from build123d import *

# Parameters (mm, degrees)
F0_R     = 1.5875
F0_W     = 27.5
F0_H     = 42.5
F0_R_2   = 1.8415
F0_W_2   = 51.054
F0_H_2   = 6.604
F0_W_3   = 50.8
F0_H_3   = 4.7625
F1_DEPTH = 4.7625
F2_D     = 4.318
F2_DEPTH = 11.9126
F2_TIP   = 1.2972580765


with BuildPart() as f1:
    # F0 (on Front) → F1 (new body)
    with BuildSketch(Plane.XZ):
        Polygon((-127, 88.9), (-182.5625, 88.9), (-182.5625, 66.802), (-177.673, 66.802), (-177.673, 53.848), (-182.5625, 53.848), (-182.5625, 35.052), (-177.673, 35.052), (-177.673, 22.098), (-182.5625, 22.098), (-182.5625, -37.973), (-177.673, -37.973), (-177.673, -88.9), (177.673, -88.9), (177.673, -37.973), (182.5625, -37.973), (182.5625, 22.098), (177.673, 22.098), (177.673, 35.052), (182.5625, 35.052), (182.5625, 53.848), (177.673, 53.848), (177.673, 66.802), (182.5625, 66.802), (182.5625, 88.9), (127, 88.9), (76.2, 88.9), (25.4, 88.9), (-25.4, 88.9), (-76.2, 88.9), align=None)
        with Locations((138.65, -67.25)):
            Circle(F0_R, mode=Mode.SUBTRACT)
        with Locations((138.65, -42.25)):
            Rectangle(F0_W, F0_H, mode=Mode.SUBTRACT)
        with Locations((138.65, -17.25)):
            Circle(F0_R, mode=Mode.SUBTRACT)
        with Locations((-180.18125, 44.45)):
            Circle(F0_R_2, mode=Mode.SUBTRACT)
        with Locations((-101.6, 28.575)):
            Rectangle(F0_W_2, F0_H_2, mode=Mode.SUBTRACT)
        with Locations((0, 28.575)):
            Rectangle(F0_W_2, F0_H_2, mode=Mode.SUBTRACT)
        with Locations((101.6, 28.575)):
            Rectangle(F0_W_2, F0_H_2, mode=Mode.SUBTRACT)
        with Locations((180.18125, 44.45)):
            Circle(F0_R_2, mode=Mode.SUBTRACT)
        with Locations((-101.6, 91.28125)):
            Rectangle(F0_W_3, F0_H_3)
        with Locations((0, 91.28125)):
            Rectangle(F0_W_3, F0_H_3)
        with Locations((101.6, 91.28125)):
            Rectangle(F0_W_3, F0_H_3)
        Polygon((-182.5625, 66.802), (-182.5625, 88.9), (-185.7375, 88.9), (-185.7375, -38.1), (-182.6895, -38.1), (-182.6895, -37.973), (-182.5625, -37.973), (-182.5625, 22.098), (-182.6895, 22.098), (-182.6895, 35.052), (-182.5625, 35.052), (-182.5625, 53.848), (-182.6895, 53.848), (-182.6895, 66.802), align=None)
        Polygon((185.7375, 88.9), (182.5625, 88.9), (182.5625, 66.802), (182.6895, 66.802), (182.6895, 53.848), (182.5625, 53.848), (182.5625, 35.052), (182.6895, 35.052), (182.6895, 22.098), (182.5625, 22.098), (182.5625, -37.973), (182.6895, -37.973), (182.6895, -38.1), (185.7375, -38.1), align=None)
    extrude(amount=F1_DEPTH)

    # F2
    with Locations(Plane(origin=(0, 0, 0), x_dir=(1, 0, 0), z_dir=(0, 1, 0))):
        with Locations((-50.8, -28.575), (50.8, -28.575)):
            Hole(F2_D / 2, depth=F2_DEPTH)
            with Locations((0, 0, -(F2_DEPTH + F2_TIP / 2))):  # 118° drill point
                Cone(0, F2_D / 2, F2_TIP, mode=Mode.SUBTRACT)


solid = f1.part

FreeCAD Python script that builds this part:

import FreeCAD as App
import Part
import Sketcher
Q = App.Units.Quantity


def add_polygon(sketch, points):
    """Adds a closed chain of lines whose ends are joined by coincident constraints."""
    first, n = sketch.GeometryCount, len(points)
    for a, b in zip(points, points[1:] + points[:1]):
        sketch.addGeometry(Part.LineSegment(App.Vector(*a, 0), App.Vector(*b, 0)), False)
    for i in range(n):
        sketch.addConstraint(Sketcher.Constraint("Coincident", first + i, 2, first + (i + 1) % n, 1))

doc = App.newDocument("Part")
body = doc.addObject("PartDesign::Body", "Body")

# Sketch on XZ plane
sketch1 = body.newObject("Sketcher::SketchObject", "Sketch")
sketch1.AttachmentSupport = (doc.getObject("XZ_Plane"), [""])
sketch1.MapMode = "FlatFace"
add_polygon(sketch1, [(-177.67, -37.97), (-177.67, -88.9), (177.67, -88.9), (177.67, -37.97), (182.69, -37.97), (182.69, -38.1), (185.74, -38.1), (185.74, 88.9), (127, 88.9), (127, 93.66), (76.2, 93.66), (76.2, 88.9), (25.4, 88.9), (25.4, 93.66), (-25.4, 93.66), (-25.4, 88.9), (-76.2, 88.9), (-76.2, 93.66), (-127, 93.66), (-127, 88.9), (-185.74, 88.9), (-185.74, -38.1), (-182.69, -38.1), (-182.69, -37.97)])  # lines 0-23
add_polygon(sketch1, [(-177.67, 66.8), (-177.67, 53.85), (-182.69, 53.85), (-182.69, 66.8)])  # lines 24-27
add_polygon(sketch1, [(-177.67, 35.05), (-177.67, 22.1), (-182.69, 22.1), (-182.69, 35.05)])  # lines 28-31
add_polygon(sketch1, [(177.67, 22.1), (177.67, 35.05), (182.69, 35.05), (182.69, 22.1)])  # lines 32-35
add_polygon(sketch1, [(177.67, 53.85), (177.67, 66.8), (182.69, 66.8), (182.69, 53.85)])  # lines 36-39
sketch1.addGeometry(Part.Circle(App.Vector(138.65, -67.25, 0), App.Vector(0, 0, 1), 1.59), False)  # 40
add_polygon(sketch1, [(152.4, -63.5), (124.9, -63.5), (124.9, -21), (152.4, -21)])  # lines 41-44
sketch1.addGeometry(Part.Circle(App.Vector(138.65, -17.25, 0), App.Vector(0, 0, 1), 1.59), False)  # 45
add_polygon(sketch1, [(-76.07, 25.27), (-127.13, 25.27), (-127.13, 31.88), (-76.07, 31.88)])  # lines 46-49
sketch1.addGeometry(Part.Circle(App.Vector(-180.18, 44.45, 0), App.Vector(0, 0, 1), 1.84), False)  # 50
add_polygon(sketch1, [(25.53, 25.27), (-25.53, 25.27), (-25.53, 31.88), (25.53, 31.88)])  # lines 51-54
add_polygon(sketch1, [(127.13, 25.27), (76.07, 25.27), (76.07, 31.88), (127.13, 31.88)])  # lines 55-58
sketch1.addGeometry(Part.Circle(App.Vector(180.18, 44.45, 0), App.Vector(0, 0, 1), 1.84), False)  # 59
sketch1.addConstraint([
    Sketcher.Constraint("Vertical", 0),
    Sketcher.Constraint("Horizontal", 1),
    Sketcher.Constraint("Vertical", 2),
    Sketcher.Constraint("Horizontal", 3),
    Sketcher.Constraint("Vertical", 4),
    Sketcher.Constraint("Horizontal", 5),
    Sketcher.Constraint("Vertical", 6),
    Sketcher.Constraint("Horizontal", 7),
    Sketcher.Constraint("Vertical", 8),
    Sketcher.Constraint("Horizontal", 9),
    Sketcher.Constraint("Vertical", 10),
    Sketcher.Constraint("Horizontal", 11),
    Sketcher.Constraint("Vertical", 12),
    Sketcher.Constraint("Horizontal", 13),
    Sketcher.Constraint("Vertical", 14),
    Sketcher.Constraint("Horizontal", 15),
    Sketcher.Constraint("Vertical", 16),
    Sketcher.Constraint("Horizontal", 17),
    Sketcher.Constraint("Vertical", 18),
    Sketcher.Constraint("Horizontal", 19),
    Sketcher.Constraint("Vertical", 20),
    Sketcher.Constraint("Horizontal", 21),
    Sketcher.Constraint("Vertical", 22),
    Sketcher.Constraint("Horizontal", 23),
    Sketcher.Constraint("Vertical", 24),
    Sketcher.Constraint("Horizontal", 25),
    Sketcher.Constraint("Vertical", 26),
    Sketcher.Constraint("Horizontal", 27),
    Sketcher.Constraint("Vertical", 28),
    Sketcher.Constraint("Horizontal", 29),
    Sketcher.Constraint("Vertical", 30),
    Sketcher.Constraint("Horizontal", 31),
    Sketcher.Constraint("Vertical", 32),
    Sketcher.Constraint("Horizontal", 33),
    Sketcher.Constraint("Vertical", 34),
    Sketcher.Constraint("Horizontal", 35),
    Sketcher.Constraint("Vertical", 36),
    Sketcher.Constraint("Horizontal", 37),
    Sketcher.Constraint("Vertical", 38),
    Sketcher.Constraint("Horizontal", 39),
    Sketcher.Constraint("Horizontal", 41),
    Sketcher.Constraint("Vertical", 42),
    Sketcher.Constraint("Horizontal", 43),
    Sketcher.Constraint("Vertical", 44),
    Sketcher.Constraint("Horizontal", 46),
    Sketcher.Constraint("Vertical", 47),
    Sketcher.Constraint("Horizontal", 48),
    Sketcher.Constraint("Vertical", 49),
    Sketcher.Constraint("Horizontal", 51),
    Sketcher.Constraint("Vertical", 52),
    Sketcher.Constraint("Horizontal", 53),
    Sketcher.Constraint("Vertical", 54),
    Sketcher.Constraint("Horizontal", 55),
    Sketcher.Constraint("Vertical", 56),
    Sketcher.Constraint("Horizontal", 57),
    Sketcher.Constraint("Vertical", 58),
    Sketcher.Constraint("Equal", 40, 45),
    Sketcher.Constraint("Equal", 50, 59),
    Sketcher.Constraint("Symmetric", 50, 3, 59, 3, -2),
    Sketcher.Constraint("Symmetric", 11, 2, 14, 2, -2),
    Sketcher.Constraint("Symmetric", 9, 2, 16, 2, -2),
    Sketcher.Constraint("Symmetric", 7, 2, 18, 2, -2),
    Sketcher.Constraint("Symmetric", 5, 2, 20, 2, -2),
    Sketcher.Constraint("Symmetric", 3, 2, 22, 2, -2),
    Sketcher.Constraint("Symmetric", 31, 2, 32, 2, -2),
    Sketcher.Constraint("Symmetric", 29, 2, 34, 2, -2),
    Sketcher.Constraint("Symmetric", 27, 2, 36, 2, -2),
    Sketcher.Constraint("Symmetric", 25, 2, 38, 2, -2),
    Sketcher.Constraint("Symmetric", 49, 2, 55, 2, -2),
    Sketcher.Constraint("Symmetric", 47, 2, 57, 2, -2),
    Sketcher.Constraint("Horizontal", 7, 2, 10, 2),
    Sketcher.Constraint("Horizontal", 9, 2, 12, 2),
    Sketcher.Constraint("Horizontal", 49, 2, 51, 2),
    Sketcher.Constraint("Horizontal", 48, 2, 52, 2),
    Sketcher.Constraint("Vertical", 40, 3, 45, 3),
    Sketcher.Constraint("Vertical", 23, 2, 24, 2),
    Sketcher.Constraint("Vertical", 22, 2, 25, 2),
    Sketcher.Constraint("Vertical", 27, 2, 28, 2),
    Sketcher.Constraint("Vertical", 26, 2, 29, 2),
    Sketcher.Constraint("Vertical", 2, 2, 32, 2),
    Sketcher.Constraint("Equal", 9, 11),
    Sketcher.Constraint("Equal", 11, 13),
    Sketcher.Constraint("Equal", 48, 51),
    Sketcher.Constraint("Equal", 26, 28),
    Sketcher.Constraint("DistanceX", 9, 2, 9, 1, Q("2 in")),
    Sketcher.Constraint("DistanceY", 6, 1, 6, 2, Q("5 in")),
    Sketcher.Constraint("Diameter", 40, Q("0.125 in")),
    Sketcher.Constraint("Diameter", 50, Q("0.145 in")),
    Sketcher.Constraint("DistanceX", -1, 1, 43, 2, Q("6 in")),
    Sketcher.Constraint("DistanceY", 1, 2, 4, 2, Q("2 in")),
    Sketcher.Constraint("DistanceY", 1, 2, 41, 2, Q("1 in")),
    Sketcher.Constraint("DistanceX", 1, 1, 1, 2, Q("13.99 in")),
    Sketcher.Constraint("DistanceX", 5, 1, 5, 2, Q("0.12 in")),
    Sketcher.Constraint("DistanceX", 46, 2, 46, 1, Q("2.01 in")),
    Sketcher.Constraint("DistanceY", 24, 2, 24, 1, Q("0.51 in")),
    Sketcher.Constraint("DistanceY", 47, 1, 47, 2, Q("0.26 in")),
    Sketcher.Constraint("DistanceY", 0, 2, -1, 1, Q("3.5 in")),
    Sketcher.Constraint("DistanceX", 7, 2, 7, 1, Q("2.3125 in")),
    Sketcher.Constraint("DistanceY", 0, 2, 0, 1, Q("2.005 in")),
    Sketcher.Constraint("DistanceY", 8, 1, 8, 2, Q("0.1875 in")),
    Sketcher.Constraint("DistanceY", -1, 1, 50, 3, Q("1.75 in")),
    Sketcher.Constraint("DistanceY", -1, 1, 24, 2, Q("2.12 in")),
    Sketcher.Constraint("DistanceY", -1, 1, 28, 2, Q("0.87 in")),
    Sketcher.Constraint("DistanceX", 28, 2, 46, 2, Q("1.99 in")),
    Sketcher.Constraint("DistanceX", 49, 2, 51, 2, Q("1.99 in")),
    Sketcher.Constraint("DistanceX", 50, 3, -1, 1, Q("7.09375 in")),
    Sketcher.Constraint("DistanceY", -1, 1, 46, 2, Q("0.995 in")),
    Sketcher.Constraint("DistanceX", 41, 2, 41, 1, Q("27.5 mm")),
    Sketcher.Constraint("DistanceY", 42, 1, 42, 2, Q("42.5 mm")),
    Sketcher.Constraint("DistanceX", -1, 1, 40, 3, Q("138.65 mm")),
    Sketcher.Constraint("DistanceY", 40, 3, -1, 1, Q("67.25 mm")),
    Sketcher.Constraint("DistanceY", 45, 3, -1, 1, Q("17.25 mm")),
])
pad1 = body.newObject("PartDesign::Pad", "Pad")
pad1.Profile = sketch1
pad1.Length = Q("0.1875 in")

# Sketch on XZ plane
sketch2 = body.newObject("Sketcher::SketchObject", "Sketch001")
sketch2.AttachmentSupport = (doc.getObject("XZ_Plane"), [""])
sketch2.MapMode = "FlatFace"
sketch2.addGeometry([
    Part.Circle(App.Vector(-50.8, 28.6, 0), App.Vector(0, 0, 1), 2.2),
    Part.Circle(App.Vector(50.8, 28.6, 0), App.Vector(0, 0, 1), 2.2),
], False)
sketch2.addConstraint([
    Sketcher.Constraint("Equal", 0, 1),
    Sketcher.Constraint("Symmetric", 0, 3, 1, 3, -2),
    Sketcher.Constraint("Diameter", 0, Q("0.17 in")),
    Sketcher.Constraint("DistanceX", 0, 3, -1, 1, Q("2 in")),
    Sketcher.Constraint("DistanceY", -1, 1, 0, 3, Q("1.125 in")),
])
doc.recompute()
hole = body.newObject("PartDesign::Hole", "Hole")
hole.Profile = sketch2
hole.ThreadType = "None"
hole.Diameter = Q("0.17 in")
hole.DepthType = "Dimension"
hole.Depth = Q("0.469 in")
hole.DrillPoint = "Angled"
hole.DrillPointAngle = 118
hole.Reversed = True

doc.recompute()
